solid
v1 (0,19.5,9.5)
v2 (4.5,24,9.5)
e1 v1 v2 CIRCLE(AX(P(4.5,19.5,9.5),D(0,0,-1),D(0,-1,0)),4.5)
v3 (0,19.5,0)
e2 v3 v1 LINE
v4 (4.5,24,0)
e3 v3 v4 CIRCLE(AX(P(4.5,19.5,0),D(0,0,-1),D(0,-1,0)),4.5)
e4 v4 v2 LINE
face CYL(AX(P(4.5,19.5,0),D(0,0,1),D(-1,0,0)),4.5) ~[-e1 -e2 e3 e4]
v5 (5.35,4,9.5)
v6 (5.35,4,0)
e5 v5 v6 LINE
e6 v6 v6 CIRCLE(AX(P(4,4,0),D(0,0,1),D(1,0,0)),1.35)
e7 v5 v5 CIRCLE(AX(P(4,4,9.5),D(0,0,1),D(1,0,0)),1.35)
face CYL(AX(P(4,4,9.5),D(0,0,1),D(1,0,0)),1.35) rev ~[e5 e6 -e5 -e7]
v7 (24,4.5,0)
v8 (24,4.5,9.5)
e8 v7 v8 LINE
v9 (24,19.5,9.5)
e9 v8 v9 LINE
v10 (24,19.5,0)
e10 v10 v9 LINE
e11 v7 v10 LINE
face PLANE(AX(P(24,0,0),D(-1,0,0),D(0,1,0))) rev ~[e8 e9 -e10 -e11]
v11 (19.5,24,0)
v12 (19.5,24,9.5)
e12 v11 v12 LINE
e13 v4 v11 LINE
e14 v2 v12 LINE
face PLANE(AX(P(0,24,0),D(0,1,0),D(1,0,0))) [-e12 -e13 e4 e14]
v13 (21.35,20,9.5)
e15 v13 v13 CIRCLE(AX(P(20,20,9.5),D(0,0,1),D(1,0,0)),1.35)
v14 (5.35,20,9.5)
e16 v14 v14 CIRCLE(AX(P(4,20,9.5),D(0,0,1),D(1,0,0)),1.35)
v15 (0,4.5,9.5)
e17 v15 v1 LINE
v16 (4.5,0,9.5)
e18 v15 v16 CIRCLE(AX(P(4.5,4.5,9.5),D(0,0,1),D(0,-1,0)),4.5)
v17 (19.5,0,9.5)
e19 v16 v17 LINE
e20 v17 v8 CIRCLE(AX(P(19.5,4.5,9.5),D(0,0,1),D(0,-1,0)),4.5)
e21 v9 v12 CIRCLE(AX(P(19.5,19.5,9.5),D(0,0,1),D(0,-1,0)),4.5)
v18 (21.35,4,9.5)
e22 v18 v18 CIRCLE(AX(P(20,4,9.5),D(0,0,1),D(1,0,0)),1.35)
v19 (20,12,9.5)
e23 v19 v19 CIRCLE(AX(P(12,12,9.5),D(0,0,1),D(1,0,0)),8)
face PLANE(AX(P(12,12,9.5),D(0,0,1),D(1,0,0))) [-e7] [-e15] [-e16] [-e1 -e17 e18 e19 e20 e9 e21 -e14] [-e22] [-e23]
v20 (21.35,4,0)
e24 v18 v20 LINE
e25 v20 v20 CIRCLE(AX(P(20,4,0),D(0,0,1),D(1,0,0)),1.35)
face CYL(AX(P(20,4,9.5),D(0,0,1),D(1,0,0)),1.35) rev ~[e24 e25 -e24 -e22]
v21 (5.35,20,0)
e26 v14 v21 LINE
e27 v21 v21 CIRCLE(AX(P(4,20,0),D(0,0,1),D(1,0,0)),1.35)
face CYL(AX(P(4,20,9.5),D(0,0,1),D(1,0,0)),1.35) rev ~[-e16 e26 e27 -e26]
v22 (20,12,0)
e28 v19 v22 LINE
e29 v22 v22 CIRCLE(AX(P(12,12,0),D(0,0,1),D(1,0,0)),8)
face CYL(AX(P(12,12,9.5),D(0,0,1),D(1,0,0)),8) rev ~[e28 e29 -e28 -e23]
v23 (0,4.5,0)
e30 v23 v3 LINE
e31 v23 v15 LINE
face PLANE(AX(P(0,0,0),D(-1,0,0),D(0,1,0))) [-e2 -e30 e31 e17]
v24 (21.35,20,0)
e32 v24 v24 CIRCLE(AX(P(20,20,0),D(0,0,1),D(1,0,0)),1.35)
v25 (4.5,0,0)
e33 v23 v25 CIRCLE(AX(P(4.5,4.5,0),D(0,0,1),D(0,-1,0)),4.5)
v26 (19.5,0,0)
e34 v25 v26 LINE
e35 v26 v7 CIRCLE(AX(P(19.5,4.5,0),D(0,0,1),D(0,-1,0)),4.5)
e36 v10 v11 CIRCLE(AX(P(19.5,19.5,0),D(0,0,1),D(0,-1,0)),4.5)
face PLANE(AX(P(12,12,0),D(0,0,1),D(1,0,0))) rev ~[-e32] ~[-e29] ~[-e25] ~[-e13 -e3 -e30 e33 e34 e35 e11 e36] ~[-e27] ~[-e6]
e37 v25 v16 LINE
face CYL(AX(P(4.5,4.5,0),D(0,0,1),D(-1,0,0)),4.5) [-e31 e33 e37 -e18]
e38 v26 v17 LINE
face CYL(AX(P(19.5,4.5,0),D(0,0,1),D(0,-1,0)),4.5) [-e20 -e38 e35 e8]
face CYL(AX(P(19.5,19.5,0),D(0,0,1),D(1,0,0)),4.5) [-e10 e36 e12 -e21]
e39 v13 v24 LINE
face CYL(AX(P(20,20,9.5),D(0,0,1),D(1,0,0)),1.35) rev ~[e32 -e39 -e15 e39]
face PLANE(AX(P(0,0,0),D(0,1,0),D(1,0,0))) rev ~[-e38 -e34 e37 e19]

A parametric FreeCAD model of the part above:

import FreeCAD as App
import Part
import Sketcher
from FreeCAD import Vector
Q = App.Units.Quantity


def edges_at(feature, points):
    """Names of the edges that pass closest to the given points."""
    edges = feature.Shape.Edges
    near = lambda p: min(range(len(edges)), key=lambda i: edges[i].distToShape(Part.Vertex(*p))[0])
    return sorted({f"Edge{near(p) + 1}" for p in points})


def add_polygon(sketch, points):
    """Adds a closed chain of lines whose ends are joined by coincident constraints."""
    first, n = sketch.GeometryCount, len(points)
    for a, b in zip(points, points[1:] + points[:1]):
        sketch.addGeometry(Part.LineSegment(App.Vector(*a, 0), App.Vector(*b, 0)), False)
    for i in range(n):
        sketch.addConstraint(Sketcher.Constraint("Coincident", first + i, 2, first + (i + 1) % n, 1))

doc = App.newDocument("Part")
body = doc.addObject("PartDesign::Body", "Body")

# Sketch on XY plane
sketch1 = body.newObject("Sketcher::SketchObject", "Sketch")
sketch1.AttachmentSupport = (doc.getObject("XY_Plane"), [""])
sketch1.MapMode = "FlatFace"
add_polygon(sketch1, [(0, 24), (0, 0), (24, 0), (24, 24)])  # lines 0-3
sketch1.addConstraint(Sketcher.Constraint("Vertical", 0))
sketch1.addConstraint(Sketcher.Constraint("Horizontal", 1))
sketch1.addConstraint(Sketcher.Constraint("Vertical", 2))
sketch1.addConstraint(Sketcher.Constraint("Horizontal", 3))
sketch1.addConstraint(Sketcher.Constraint("Coincident", 0, 2, -1, 1))
sketch1.addConstraint(Sketcher.Constraint("Equal", 3, 0))
sketch1.addConstraint(Sketcher.Constraint("DistanceX", 1, 1, 1, 2, Q("24 mm")))
pad1 = body.newObject("PartDesign::Pad", "Pad")
pad1.Profile = sketch1
pad1.Length = 9.5
doc.recompute()

fillet = body.newObject("PartDesign::Fillet", "Fillet")
fillet.Base = (pad1, edges_at(pad1, [
    (0, 0, 4.75),
    (24, 0, 4.75),
    (24, 24, 4.75),
    (0, 24, 4.75),
]))
fillet.Radius = 4.5

# Sketch on XY plane
sketch2 = body.newObject("Sketcher::SketchObject", "Sketch001")
sketch2.AttachmentSupport = (doc.getObject("XY_Plane"), [""])
sketch2.MapMode = "FlatFace"
sketch2.AttachmentOffset = App.Placement(Vector(0, 0, 9.5), App.Rotation())
sketch2.addGeometry(Part.Circle(Vector(12, 12, 0), Vector(0, 0, 1), 8), False)
sketch2.addConstraint(Sketcher.Constraint("Diameter", 0, Q("16 mm")))
sketch2.addConstraint(Sketcher.Constraint("DistanceX", -1, 1, 0, 3, Q("12 mm")))
sketch2.addConstraint(Sketcher.Constraint("DistanceY", -1, 1, 0, 3, Q("12 mm")))
pocket1 = body.newObject("PartDesign::Pocket", "Pocket")
pocket1.Profile = sketch2
pocket1.Type = "ThroughAll"

# Sketch on XY plane
sketch3 = body.newObject("Sketcher::SketchObject", "Sketch002")
sketch3.AttachmentSupport = (doc.getObject("XY_Plane"), [""])
sketch3.MapMode = "FlatFace"
sketch3.AttachmentOffset = App.Placement(Vector(0, 0, 9.5), App.Rotation())
sketch3.addGeometry(Part.Circle(Vector(4, 4, 0), Vector(0, 0, 1), 1.4), False)
sketch3.addGeometry(Part.Circle(Vector(4, 20, 0), Vector(0, 0, 1), 1.4), False)
sketch3.addGeometry(Part.Circle(Vector(20, 4, 0), Vector(0, 0, 1), 1.4), False)
sketch3.addGeometry(Part.Circle(Vector(20, 20, 0), Vector(0, 0, 1), 1.4), False)
sketch3.addConstraint(Sketcher.Constraint("Equal", 0, 1))
sketch3.addConstraint(Sketcher.Constraint("Equal", 1, 2))
sketch3.addConstraint(Sketcher.Constraint("Equal", 2, 3))
sketch3.addConstraint(Sketcher.Constraint("Horizontal", 0, 3, 2, 3))
sketch3.addConstraint(Sketcher.Constraint("Horizontal", 1, 3, 3, 3))
sketch3.addConstraint(Sketcher.Constraint("Vertical", 0, 3, 1, 3))
sketch3.addConstraint(Sketcher.Constraint("Vertical", 2, 3, 3, 3))
sketch3.addConstraint(Sketcher.Constraint("Diameter", 0, Q("2.7 mm")))
sketch3.addConstraint(Sketcher.Constraint("DistanceX", -1, 1, 0, 3, Q("4 mm")))
sketch3.addConstraint(Sketcher.Constraint("DistanceY", -1, 1, 0, 3, Q("4 mm")))
sketch3.addConstraint(Sketcher.Constraint("DistanceY", -1, 1, 1, 3, Q("20 mm")))
sketch3.addConstraint(Sketcher.Constraint("DistanceX", -1, 1, 2, 3, Q("20 mm")))
pocket2 = body.newObject("PartDesign::Pocket", "Pocket001")
pocket2.Profile = sketch3
pocket2.Type = "ThroughAll"

doc.recompute()
